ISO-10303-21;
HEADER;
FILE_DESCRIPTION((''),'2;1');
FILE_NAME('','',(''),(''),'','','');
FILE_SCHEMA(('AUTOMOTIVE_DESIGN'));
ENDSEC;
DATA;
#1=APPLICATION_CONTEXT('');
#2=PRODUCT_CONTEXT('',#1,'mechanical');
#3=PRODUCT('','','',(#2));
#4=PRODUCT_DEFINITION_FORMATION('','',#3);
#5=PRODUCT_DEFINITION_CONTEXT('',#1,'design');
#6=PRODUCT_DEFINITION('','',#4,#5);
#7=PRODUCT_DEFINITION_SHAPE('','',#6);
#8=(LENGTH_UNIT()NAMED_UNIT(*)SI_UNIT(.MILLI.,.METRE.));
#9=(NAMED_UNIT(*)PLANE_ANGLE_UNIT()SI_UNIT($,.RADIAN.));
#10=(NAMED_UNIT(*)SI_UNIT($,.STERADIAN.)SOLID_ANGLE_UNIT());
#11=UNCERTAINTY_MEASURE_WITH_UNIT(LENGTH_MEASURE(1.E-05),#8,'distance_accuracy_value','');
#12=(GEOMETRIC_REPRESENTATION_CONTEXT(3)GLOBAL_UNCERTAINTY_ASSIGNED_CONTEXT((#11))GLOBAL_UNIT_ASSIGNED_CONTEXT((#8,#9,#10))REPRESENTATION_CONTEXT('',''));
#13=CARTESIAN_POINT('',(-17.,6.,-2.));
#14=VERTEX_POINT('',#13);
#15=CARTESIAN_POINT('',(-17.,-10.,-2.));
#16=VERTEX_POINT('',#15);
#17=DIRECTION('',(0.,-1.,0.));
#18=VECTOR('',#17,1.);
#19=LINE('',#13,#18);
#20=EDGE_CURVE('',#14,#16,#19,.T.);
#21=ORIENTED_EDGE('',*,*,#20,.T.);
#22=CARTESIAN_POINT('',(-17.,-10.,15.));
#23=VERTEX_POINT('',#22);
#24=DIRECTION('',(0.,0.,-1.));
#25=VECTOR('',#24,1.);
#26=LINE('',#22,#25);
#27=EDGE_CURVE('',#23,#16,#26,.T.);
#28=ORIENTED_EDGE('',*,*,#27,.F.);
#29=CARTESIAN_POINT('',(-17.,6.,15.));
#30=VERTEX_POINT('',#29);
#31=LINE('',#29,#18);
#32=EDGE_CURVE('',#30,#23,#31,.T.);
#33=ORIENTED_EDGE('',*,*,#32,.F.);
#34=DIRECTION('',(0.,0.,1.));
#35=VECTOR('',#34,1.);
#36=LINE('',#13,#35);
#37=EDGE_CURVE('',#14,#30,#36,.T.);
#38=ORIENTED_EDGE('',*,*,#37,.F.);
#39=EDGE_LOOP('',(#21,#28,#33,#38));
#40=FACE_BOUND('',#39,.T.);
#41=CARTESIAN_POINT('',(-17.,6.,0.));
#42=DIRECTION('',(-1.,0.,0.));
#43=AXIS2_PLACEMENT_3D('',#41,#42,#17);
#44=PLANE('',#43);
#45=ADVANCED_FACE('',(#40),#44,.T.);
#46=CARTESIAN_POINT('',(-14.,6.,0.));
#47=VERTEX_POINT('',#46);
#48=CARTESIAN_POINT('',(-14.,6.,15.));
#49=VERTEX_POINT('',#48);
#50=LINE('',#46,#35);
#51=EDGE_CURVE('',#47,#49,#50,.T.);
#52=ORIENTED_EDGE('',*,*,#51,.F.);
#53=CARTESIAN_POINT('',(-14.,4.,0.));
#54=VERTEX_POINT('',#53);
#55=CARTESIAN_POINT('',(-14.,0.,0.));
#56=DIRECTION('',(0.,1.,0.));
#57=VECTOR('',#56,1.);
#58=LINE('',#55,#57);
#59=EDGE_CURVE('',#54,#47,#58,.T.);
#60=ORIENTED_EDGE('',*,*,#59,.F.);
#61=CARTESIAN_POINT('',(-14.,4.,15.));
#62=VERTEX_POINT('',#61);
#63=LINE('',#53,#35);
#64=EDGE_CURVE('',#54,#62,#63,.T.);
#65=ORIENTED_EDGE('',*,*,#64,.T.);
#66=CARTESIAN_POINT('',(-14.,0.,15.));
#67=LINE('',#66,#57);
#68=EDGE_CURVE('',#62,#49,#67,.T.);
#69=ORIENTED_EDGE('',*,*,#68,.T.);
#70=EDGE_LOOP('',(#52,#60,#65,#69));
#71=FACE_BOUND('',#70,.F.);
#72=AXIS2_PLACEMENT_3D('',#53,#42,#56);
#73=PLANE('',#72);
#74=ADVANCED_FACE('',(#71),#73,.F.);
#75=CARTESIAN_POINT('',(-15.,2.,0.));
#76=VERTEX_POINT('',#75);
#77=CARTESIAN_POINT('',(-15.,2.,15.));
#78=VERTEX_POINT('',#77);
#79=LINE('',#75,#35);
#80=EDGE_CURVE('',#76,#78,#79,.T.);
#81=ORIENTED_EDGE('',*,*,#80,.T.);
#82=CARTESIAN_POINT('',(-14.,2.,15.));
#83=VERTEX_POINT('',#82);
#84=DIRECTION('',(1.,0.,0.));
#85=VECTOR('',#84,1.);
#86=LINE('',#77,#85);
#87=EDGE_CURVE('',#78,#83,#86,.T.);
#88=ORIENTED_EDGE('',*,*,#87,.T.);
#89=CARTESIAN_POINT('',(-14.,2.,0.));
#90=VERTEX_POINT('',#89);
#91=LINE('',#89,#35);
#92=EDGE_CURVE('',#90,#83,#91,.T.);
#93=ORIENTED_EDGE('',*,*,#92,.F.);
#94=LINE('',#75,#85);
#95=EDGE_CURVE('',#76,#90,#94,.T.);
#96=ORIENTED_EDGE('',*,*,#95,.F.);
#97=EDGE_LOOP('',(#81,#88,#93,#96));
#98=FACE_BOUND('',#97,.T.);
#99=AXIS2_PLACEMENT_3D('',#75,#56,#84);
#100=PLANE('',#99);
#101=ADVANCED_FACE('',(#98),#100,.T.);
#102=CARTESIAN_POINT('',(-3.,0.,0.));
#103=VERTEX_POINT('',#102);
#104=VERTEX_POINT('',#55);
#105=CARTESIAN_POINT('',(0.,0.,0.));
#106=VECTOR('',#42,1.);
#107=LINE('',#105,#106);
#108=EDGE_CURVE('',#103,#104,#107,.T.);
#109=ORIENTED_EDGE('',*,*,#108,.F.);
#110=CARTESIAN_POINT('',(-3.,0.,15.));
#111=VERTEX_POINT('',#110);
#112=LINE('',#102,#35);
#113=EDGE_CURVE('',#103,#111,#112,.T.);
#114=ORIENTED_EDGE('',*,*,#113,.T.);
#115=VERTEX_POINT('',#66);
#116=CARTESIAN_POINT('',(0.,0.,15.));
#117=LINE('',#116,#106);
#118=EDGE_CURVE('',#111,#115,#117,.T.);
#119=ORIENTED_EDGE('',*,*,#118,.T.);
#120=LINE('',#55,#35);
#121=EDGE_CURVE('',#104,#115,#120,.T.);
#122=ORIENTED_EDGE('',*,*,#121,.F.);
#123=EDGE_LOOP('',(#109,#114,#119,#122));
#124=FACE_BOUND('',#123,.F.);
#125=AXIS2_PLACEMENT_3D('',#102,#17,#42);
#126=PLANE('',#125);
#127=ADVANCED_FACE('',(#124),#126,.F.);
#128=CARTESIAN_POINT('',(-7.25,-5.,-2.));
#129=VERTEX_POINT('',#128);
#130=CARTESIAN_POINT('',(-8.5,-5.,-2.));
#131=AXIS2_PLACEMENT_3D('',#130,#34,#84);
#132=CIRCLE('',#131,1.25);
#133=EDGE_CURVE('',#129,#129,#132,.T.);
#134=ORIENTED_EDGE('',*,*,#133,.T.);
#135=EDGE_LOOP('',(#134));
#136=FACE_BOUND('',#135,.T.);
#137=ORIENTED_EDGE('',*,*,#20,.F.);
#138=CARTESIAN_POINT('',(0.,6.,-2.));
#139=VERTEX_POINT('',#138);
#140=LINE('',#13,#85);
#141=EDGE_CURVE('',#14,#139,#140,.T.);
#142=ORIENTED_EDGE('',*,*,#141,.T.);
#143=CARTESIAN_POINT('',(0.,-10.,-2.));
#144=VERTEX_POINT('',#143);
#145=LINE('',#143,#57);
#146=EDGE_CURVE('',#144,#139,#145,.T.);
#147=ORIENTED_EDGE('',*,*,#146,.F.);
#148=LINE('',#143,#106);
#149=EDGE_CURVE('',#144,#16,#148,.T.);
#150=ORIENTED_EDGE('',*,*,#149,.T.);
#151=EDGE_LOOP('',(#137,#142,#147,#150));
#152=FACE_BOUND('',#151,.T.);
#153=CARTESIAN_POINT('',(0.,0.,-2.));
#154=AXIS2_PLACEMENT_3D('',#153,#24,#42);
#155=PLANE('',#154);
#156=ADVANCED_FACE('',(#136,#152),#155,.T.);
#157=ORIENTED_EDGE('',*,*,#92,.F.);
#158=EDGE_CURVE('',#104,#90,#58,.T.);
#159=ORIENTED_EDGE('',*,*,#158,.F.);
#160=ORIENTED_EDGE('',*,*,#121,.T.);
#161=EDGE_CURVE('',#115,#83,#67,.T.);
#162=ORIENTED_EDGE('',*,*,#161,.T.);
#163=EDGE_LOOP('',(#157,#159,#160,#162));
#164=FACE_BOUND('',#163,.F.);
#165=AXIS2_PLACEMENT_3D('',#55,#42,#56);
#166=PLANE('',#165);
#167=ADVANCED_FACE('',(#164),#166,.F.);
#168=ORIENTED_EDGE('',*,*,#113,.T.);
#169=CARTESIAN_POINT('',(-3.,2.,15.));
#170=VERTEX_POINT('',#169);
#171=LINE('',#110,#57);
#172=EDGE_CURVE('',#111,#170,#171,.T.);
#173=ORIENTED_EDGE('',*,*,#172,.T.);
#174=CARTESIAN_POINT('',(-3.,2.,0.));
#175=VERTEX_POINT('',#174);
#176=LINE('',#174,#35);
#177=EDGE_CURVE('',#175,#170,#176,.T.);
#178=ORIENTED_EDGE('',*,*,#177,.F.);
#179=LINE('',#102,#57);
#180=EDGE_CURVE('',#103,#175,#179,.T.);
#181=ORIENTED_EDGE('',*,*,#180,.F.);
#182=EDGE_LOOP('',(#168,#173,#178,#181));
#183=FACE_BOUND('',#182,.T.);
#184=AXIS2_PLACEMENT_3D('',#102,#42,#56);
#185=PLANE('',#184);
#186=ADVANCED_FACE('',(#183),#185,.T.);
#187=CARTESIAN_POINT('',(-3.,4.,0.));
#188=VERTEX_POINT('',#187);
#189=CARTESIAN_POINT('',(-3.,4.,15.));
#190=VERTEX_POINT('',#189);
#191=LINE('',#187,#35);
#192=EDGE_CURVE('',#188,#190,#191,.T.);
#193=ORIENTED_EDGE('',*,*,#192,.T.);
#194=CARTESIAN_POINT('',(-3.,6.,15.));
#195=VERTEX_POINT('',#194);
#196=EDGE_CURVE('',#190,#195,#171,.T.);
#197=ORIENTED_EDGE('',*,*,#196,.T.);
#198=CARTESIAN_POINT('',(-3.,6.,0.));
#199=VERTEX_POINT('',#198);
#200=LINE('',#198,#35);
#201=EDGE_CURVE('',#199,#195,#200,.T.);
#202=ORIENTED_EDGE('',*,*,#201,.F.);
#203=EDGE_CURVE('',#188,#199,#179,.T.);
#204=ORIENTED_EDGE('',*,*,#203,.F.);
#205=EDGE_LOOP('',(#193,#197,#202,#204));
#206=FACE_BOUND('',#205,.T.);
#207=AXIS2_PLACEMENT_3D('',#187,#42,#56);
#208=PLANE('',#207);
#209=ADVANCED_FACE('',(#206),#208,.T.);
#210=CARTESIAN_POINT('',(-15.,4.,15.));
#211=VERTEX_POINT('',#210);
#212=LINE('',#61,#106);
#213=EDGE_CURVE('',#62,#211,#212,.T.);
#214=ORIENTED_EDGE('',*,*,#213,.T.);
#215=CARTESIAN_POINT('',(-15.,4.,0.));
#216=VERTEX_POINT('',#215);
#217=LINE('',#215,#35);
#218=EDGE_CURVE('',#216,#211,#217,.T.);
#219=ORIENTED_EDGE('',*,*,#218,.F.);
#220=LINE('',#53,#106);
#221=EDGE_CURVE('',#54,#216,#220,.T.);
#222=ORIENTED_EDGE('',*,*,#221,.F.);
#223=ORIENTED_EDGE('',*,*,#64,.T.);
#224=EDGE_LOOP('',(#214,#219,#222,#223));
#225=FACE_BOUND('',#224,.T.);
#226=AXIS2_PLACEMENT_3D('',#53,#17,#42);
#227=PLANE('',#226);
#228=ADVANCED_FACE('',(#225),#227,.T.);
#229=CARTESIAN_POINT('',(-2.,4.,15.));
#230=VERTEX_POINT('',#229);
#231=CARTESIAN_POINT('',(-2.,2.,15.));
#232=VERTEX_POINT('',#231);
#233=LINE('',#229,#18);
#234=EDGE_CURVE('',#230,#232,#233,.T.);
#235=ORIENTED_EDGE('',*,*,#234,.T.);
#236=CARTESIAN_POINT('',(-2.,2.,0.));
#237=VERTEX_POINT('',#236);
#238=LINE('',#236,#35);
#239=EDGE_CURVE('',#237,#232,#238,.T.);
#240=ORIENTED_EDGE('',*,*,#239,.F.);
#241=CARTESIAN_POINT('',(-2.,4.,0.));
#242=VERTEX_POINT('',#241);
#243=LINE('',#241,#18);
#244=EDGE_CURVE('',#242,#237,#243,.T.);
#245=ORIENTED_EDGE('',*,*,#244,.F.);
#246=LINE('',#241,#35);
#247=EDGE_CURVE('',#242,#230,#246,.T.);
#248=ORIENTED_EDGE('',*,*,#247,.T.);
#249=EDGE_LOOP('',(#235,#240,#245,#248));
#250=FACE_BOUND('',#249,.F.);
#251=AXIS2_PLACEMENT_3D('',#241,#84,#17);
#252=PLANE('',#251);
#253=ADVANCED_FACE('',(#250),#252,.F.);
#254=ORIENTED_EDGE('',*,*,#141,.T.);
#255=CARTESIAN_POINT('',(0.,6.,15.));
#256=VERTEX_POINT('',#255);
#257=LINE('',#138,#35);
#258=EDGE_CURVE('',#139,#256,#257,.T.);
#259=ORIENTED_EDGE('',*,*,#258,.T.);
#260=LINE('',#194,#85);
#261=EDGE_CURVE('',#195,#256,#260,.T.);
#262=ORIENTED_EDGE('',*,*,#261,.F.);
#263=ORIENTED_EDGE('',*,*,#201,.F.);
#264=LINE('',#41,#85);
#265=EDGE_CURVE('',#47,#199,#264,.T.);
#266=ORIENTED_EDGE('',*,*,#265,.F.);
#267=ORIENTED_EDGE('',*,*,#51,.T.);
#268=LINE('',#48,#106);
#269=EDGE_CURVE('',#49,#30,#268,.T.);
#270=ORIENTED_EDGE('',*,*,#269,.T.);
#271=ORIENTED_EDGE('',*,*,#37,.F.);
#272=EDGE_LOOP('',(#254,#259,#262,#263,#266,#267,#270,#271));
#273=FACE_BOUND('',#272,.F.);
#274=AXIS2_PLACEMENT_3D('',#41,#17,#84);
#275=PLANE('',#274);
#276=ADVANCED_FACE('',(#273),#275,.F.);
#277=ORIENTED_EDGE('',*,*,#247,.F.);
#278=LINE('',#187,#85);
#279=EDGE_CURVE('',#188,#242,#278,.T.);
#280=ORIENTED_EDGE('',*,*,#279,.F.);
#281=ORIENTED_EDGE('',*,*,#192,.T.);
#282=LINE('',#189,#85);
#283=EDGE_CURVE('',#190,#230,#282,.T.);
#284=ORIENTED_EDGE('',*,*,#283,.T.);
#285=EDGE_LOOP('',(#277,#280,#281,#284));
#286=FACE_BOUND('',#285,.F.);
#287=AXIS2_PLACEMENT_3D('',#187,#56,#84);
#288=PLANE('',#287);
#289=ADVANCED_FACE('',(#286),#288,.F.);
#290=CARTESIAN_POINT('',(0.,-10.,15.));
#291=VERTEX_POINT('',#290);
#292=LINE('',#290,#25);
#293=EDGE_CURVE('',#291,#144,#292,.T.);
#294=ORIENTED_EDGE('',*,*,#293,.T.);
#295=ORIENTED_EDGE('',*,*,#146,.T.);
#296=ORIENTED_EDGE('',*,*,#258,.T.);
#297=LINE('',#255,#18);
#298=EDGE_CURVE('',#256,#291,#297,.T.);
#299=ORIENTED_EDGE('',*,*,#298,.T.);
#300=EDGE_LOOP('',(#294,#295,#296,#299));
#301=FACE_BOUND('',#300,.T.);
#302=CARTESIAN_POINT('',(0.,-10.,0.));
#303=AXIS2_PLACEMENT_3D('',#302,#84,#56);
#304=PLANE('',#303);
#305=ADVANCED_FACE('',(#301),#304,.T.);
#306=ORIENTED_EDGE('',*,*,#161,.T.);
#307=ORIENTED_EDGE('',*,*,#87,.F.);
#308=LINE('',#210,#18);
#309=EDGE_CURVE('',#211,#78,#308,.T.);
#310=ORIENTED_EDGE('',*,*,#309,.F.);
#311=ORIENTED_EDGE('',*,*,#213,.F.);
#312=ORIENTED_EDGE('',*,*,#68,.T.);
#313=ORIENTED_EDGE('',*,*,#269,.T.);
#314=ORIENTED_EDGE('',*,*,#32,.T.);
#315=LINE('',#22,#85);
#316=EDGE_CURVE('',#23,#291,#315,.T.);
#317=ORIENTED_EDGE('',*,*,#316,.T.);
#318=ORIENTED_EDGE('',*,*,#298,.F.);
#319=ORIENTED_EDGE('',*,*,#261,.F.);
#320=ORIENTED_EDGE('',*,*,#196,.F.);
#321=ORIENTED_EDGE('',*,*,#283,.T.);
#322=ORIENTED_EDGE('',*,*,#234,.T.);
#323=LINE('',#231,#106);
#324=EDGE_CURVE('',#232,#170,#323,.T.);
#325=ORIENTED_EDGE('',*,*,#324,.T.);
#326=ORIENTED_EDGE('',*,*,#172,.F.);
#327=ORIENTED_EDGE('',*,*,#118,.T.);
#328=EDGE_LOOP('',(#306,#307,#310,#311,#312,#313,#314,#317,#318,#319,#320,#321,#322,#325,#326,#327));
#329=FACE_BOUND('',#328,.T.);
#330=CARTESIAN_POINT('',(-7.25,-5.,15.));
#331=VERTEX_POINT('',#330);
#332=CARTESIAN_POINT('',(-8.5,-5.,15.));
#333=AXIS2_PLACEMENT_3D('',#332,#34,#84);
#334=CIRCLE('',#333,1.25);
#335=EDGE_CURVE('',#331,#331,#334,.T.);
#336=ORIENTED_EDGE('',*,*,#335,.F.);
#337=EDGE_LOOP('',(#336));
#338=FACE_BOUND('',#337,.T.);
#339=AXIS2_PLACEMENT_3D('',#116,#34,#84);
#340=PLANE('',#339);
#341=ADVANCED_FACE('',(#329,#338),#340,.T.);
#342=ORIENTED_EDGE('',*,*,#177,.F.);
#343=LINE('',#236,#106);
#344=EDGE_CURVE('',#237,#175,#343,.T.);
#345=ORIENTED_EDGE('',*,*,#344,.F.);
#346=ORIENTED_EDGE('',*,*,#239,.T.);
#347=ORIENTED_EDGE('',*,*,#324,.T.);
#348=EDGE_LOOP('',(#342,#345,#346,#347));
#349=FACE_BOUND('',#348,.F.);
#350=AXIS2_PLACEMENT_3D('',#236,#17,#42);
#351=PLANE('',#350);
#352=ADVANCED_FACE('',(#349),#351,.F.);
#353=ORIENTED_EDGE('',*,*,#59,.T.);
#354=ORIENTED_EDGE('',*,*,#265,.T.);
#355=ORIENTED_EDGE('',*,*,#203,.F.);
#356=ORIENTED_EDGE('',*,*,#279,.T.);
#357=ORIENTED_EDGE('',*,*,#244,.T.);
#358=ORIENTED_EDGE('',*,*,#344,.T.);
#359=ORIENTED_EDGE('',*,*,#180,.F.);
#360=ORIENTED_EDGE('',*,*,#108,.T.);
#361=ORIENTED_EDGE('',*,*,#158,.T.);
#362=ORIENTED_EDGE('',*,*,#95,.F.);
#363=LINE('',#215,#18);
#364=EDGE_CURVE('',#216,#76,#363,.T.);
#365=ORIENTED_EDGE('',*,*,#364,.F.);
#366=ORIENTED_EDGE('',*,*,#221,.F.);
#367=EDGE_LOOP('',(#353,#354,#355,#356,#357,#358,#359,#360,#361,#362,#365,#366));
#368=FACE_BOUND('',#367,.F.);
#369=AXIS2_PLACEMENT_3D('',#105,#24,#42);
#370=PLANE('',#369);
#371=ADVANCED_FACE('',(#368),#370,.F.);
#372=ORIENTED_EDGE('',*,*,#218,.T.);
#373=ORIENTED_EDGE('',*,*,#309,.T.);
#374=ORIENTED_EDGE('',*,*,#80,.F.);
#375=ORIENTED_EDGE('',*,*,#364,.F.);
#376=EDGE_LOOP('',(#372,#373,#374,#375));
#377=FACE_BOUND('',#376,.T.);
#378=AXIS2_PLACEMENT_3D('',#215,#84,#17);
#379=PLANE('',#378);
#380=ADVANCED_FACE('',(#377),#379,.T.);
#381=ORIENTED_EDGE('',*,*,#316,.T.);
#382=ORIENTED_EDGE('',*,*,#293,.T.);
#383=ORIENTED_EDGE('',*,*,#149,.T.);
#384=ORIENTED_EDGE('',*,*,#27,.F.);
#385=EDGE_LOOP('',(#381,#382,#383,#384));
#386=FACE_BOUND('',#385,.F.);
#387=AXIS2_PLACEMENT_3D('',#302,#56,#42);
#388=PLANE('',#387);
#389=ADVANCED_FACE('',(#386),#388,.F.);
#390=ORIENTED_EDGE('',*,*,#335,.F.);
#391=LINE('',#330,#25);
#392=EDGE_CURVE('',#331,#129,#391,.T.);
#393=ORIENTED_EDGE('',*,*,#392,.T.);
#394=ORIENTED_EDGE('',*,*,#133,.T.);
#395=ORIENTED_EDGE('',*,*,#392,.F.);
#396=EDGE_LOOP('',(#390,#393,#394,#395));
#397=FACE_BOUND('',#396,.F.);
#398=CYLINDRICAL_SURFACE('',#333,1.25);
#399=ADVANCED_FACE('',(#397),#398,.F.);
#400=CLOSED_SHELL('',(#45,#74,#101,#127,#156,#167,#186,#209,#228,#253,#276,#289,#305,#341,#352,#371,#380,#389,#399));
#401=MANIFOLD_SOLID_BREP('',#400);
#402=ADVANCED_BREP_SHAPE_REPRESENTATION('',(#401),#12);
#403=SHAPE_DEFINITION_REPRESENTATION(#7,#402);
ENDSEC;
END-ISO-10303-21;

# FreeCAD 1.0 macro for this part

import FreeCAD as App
import Part
import Sketcher


def add_polygon(sketch, points):
    """Adds a closed chain of lines whose ends are joined by coincident constraints."""
    first, n = sketch.GeometryCount, len(points)
    for a, b in zip(points, points[1:] + points[:1]):
        sketch.addGeometry(Part.LineSegment(App.Vector(*a, 0), App.Vector(*b, 0)), False)
    for i in range(n):
        sketch.addConstraint(Sketcher.Constraint("Coincident", first + i, 2, first + (i + 1) % n, 1))

doc = App.newDocument("Part")
params = doc.addObject("Spreadsheet::Sheet", "Params")
for row, (alias, value) in enumerate([
    ("sketch1_width", "1 mm"),
    ("sketch1_height", "2 mm"),
    ("sketch1_width2", "11 mm"),
    ("pad1_length", "15 mm"),
    ("sketch2_width", "17 mm"),
    ("sketch2_height", "16 mm"),
    ("pad2_length", "2 mm"),
    ("sketch3_diameter", "2.5 mm"),
], start=1):
    params.set(f"A{row}", alias)
    params.set(f"B{row}", "=" + value)
    params.setAlias(f"B{row}", alias)

body = doc.addObject("PartDesign::Body", "Body")

# Sketch on XY plane
sketch1 = body.newObject("Sketcher::SketchObject", "Sketch")
sketch1.AttachmentSupport = (doc.getObject("XY_Plane"), [""])
sketch1.MapMode = "FlatFace"
add_polygon(sketch1, [(0, -10), (0, 6), (-3, 6), (-3, 4), (-2, 4), (-2, 2), (-3, 2), (-3, 0), (-14, 0), (-14, 2), (-15, 2), (-15, 4), (-14, 4), (-14, 6), (-17, 6), (-17, -10)])  # lines 0-15
sketch1.addConstraint(Sketcher.Constraint("Vertical", 0))
sketch1.addConstraint(Sketcher.Constraint("Horizontal", 1))
sketch1.addConstraint(Sketcher.Constraint("Vertical", 2))
sketch1.addConstraint(Sketcher.Constraint("Horizontal", 3))
sketch1.addConstraint(Sketcher.Constraint("Vertical", 4))
sketch1.addConstraint(Sketcher.Constraint("Horizontal", 5))
sketch1.addConstraint(Sketcher.Constraint("Vertical", 6))
sketch1.addConstraint(Sketcher.Constraint("Horizontal", 7))
sketch1.addConstraint(Sketcher.Constraint("Vertical", 8))
sketch1.addConstraint(Sketcher.Constraint("Horizontal", 9))
sketch1.addConstraint(Sketcher.Constraint("Vertical", 10))
sketch1.addConstraint(Sketcher.Constraint("Horizontal", 11))
sketch1.addConstraint(Sketcher.Constraint("Vertical", 12))
sketch1.addConstraint(Sketcher.Constraint("Horizontal", 13))
sketch1.addConstraint(Sketcher.Constraint("Vertical", 14))
sketch1.addConstraint(Sketcher.Constraint("Horizontal", 15))
sketch1.addConstraint(Sketcher.Constraint("PointOnObject", 0, 2, -2))
sketch1.addConstraint(Sketcher.Constraint("PointOnObject", 6, 2, -1))
sketch1.addConstraint(Sketcher.Constraint("Horizontal", 5, 2, 8, 2))
sketch1.addConstraint(Sketcher.Constraint("Horizontal", 3, 2, 10, 2))
sketch1.addConstraint(Sketcher.Constraint("Horizontal", 1, 2, 12, 2))
sketch1.addConstraint(Sketcher.Constraint("Vertical", 2, 2, 5, 2))
sketch1.addConstraint(Sketcher.Constraint("Vertical", 8, 2, 11, 2))
sketch1.addConstraint(Sketcher.Constraint("Equal", 5, 9))
sketch1.addConstraint(Sketcher.Constraint("Equal", 1, 13))
sketch1.addConstraint(Sketcher.Constraint("Equal", 2, 4))
sketch1.addConstraint(Sketcher.Constraint("Equal", 4, 6))
sketch1.addConstraint(Sketcher.Constraint("DistanceX", 3, 1, 3, 2, 1.0))
sketch1.addConstraint(Sketcher.Constraint("DistanceY", 2, 2, 2, 1, 2.0))
sketch1.addConstraint(Sketcher.Constraint("DistanceX", 3, 2, -1, 1, 2.0))
sketch1.addConstraint(Sketcher.Constraint("DistanceY", 14, 2, -1, 1, 10.0))
sketch1.addConstraint(Sketcher.Constraint("DistanceX", 7, 2, 7, 1, 11.0))
sketch1.setExpression("Constraints[43]", "Params.sketch1_width")
sketch1.setExpression("Constraints[44]", "Params.sketch1_height")
sketch1.setExpression("Constraints[47]", "Params.sketch1_width2")
pad1 = body.newObject("PartDesign::Pad", "Pad")
pad1.Profile = sketch1
pad1.setExpression("Length", "Params.pad1_length")

# Sketch on XY plane
sketch2 = body.newObject("Sketcher::SketchObject", "Sketch001")
sketch2.AttachmentSupport = (doc.getObject("XY_Plane"), [""])
sketch2.MapMode = "FlatFace"
add_polygon(sketch2, [(0, 6), (0, -10), (-17, -10), (-17, 6)])  # lines 0-3
sketch2.addConstraint(Sketcher.Constraint("Vertical", 0))
sketch2.addConstraint(Sketcher.Constraint("Horizontal", 1))
sketch2.addConstraint(Sketcher.Constraint("Vertical", 2))
sketch2.addConstraint(Sketcher.Constraint("Horizontal", 3))
sketch2.addConstraint(Sketcher.Constraint("PointOnObject", 0, 2, -2))
sketch2.addConstraint(Sketcher.Constraint("DistanceX", 1, 2, 1, 1, 17.0))
sketch2.addConstraint(Sketcher.Constraint("DistanceY", 0, 2, 0, 1, 16.0))
sketch2.addConstraint(Sketcher.Constraint("DistanceY", 0, 2, -1, 1, 10.0))
sketch2.setExpression("Constraints[9]", "Params.sketch2_width")
sketch2.setExpression("Constraints[10]", "Params.sketch2_height")
pad2 = body.newObject("PartDesign::Pad", "Pad001")
pad2.Profile = sketch2
pad2.setExpression("Length", "Params.pad2_length")
pad2.Reversed = True

# Sketch on XY plane
sketch3 = body.newObject("Sketcher::SketchObject", "Sketch002")
sketch3.AttachmentSupport = (doc.getObject("XY_Plane"), [""])
sketch3.MapMode = "FlatFace"
sketch3.AttachmentOffset = App.Placement(App.Vector(0, 0, 15), App.Rotation())
sketch3.addGeometry(Part.Circle(App.Vector(-8.5, -5, 0), App.Vector(0, 0, 1), 1.25), False)
sketch3.addConstraint(Sketcher.Constraint("Diameter", 0, 2.5))
sketch3.addConstraint(Sketcher.Constraint("DistanceY", 0, 3, -1, 1, 5.0))
sketch3.addConstraint(Sketcher.Constraint("DistanceX", 0, 3, -1, 1, 8.5))
sketch3.setExpression("Constraints[0]", "Params.sketch3_diameter")
pocket1 = body.newObject("PartDesign::Pocket", "Pocket")
pocket1.Profile = sketch3
pocket1.Type = "ThroughAll"

doc.recompute()
